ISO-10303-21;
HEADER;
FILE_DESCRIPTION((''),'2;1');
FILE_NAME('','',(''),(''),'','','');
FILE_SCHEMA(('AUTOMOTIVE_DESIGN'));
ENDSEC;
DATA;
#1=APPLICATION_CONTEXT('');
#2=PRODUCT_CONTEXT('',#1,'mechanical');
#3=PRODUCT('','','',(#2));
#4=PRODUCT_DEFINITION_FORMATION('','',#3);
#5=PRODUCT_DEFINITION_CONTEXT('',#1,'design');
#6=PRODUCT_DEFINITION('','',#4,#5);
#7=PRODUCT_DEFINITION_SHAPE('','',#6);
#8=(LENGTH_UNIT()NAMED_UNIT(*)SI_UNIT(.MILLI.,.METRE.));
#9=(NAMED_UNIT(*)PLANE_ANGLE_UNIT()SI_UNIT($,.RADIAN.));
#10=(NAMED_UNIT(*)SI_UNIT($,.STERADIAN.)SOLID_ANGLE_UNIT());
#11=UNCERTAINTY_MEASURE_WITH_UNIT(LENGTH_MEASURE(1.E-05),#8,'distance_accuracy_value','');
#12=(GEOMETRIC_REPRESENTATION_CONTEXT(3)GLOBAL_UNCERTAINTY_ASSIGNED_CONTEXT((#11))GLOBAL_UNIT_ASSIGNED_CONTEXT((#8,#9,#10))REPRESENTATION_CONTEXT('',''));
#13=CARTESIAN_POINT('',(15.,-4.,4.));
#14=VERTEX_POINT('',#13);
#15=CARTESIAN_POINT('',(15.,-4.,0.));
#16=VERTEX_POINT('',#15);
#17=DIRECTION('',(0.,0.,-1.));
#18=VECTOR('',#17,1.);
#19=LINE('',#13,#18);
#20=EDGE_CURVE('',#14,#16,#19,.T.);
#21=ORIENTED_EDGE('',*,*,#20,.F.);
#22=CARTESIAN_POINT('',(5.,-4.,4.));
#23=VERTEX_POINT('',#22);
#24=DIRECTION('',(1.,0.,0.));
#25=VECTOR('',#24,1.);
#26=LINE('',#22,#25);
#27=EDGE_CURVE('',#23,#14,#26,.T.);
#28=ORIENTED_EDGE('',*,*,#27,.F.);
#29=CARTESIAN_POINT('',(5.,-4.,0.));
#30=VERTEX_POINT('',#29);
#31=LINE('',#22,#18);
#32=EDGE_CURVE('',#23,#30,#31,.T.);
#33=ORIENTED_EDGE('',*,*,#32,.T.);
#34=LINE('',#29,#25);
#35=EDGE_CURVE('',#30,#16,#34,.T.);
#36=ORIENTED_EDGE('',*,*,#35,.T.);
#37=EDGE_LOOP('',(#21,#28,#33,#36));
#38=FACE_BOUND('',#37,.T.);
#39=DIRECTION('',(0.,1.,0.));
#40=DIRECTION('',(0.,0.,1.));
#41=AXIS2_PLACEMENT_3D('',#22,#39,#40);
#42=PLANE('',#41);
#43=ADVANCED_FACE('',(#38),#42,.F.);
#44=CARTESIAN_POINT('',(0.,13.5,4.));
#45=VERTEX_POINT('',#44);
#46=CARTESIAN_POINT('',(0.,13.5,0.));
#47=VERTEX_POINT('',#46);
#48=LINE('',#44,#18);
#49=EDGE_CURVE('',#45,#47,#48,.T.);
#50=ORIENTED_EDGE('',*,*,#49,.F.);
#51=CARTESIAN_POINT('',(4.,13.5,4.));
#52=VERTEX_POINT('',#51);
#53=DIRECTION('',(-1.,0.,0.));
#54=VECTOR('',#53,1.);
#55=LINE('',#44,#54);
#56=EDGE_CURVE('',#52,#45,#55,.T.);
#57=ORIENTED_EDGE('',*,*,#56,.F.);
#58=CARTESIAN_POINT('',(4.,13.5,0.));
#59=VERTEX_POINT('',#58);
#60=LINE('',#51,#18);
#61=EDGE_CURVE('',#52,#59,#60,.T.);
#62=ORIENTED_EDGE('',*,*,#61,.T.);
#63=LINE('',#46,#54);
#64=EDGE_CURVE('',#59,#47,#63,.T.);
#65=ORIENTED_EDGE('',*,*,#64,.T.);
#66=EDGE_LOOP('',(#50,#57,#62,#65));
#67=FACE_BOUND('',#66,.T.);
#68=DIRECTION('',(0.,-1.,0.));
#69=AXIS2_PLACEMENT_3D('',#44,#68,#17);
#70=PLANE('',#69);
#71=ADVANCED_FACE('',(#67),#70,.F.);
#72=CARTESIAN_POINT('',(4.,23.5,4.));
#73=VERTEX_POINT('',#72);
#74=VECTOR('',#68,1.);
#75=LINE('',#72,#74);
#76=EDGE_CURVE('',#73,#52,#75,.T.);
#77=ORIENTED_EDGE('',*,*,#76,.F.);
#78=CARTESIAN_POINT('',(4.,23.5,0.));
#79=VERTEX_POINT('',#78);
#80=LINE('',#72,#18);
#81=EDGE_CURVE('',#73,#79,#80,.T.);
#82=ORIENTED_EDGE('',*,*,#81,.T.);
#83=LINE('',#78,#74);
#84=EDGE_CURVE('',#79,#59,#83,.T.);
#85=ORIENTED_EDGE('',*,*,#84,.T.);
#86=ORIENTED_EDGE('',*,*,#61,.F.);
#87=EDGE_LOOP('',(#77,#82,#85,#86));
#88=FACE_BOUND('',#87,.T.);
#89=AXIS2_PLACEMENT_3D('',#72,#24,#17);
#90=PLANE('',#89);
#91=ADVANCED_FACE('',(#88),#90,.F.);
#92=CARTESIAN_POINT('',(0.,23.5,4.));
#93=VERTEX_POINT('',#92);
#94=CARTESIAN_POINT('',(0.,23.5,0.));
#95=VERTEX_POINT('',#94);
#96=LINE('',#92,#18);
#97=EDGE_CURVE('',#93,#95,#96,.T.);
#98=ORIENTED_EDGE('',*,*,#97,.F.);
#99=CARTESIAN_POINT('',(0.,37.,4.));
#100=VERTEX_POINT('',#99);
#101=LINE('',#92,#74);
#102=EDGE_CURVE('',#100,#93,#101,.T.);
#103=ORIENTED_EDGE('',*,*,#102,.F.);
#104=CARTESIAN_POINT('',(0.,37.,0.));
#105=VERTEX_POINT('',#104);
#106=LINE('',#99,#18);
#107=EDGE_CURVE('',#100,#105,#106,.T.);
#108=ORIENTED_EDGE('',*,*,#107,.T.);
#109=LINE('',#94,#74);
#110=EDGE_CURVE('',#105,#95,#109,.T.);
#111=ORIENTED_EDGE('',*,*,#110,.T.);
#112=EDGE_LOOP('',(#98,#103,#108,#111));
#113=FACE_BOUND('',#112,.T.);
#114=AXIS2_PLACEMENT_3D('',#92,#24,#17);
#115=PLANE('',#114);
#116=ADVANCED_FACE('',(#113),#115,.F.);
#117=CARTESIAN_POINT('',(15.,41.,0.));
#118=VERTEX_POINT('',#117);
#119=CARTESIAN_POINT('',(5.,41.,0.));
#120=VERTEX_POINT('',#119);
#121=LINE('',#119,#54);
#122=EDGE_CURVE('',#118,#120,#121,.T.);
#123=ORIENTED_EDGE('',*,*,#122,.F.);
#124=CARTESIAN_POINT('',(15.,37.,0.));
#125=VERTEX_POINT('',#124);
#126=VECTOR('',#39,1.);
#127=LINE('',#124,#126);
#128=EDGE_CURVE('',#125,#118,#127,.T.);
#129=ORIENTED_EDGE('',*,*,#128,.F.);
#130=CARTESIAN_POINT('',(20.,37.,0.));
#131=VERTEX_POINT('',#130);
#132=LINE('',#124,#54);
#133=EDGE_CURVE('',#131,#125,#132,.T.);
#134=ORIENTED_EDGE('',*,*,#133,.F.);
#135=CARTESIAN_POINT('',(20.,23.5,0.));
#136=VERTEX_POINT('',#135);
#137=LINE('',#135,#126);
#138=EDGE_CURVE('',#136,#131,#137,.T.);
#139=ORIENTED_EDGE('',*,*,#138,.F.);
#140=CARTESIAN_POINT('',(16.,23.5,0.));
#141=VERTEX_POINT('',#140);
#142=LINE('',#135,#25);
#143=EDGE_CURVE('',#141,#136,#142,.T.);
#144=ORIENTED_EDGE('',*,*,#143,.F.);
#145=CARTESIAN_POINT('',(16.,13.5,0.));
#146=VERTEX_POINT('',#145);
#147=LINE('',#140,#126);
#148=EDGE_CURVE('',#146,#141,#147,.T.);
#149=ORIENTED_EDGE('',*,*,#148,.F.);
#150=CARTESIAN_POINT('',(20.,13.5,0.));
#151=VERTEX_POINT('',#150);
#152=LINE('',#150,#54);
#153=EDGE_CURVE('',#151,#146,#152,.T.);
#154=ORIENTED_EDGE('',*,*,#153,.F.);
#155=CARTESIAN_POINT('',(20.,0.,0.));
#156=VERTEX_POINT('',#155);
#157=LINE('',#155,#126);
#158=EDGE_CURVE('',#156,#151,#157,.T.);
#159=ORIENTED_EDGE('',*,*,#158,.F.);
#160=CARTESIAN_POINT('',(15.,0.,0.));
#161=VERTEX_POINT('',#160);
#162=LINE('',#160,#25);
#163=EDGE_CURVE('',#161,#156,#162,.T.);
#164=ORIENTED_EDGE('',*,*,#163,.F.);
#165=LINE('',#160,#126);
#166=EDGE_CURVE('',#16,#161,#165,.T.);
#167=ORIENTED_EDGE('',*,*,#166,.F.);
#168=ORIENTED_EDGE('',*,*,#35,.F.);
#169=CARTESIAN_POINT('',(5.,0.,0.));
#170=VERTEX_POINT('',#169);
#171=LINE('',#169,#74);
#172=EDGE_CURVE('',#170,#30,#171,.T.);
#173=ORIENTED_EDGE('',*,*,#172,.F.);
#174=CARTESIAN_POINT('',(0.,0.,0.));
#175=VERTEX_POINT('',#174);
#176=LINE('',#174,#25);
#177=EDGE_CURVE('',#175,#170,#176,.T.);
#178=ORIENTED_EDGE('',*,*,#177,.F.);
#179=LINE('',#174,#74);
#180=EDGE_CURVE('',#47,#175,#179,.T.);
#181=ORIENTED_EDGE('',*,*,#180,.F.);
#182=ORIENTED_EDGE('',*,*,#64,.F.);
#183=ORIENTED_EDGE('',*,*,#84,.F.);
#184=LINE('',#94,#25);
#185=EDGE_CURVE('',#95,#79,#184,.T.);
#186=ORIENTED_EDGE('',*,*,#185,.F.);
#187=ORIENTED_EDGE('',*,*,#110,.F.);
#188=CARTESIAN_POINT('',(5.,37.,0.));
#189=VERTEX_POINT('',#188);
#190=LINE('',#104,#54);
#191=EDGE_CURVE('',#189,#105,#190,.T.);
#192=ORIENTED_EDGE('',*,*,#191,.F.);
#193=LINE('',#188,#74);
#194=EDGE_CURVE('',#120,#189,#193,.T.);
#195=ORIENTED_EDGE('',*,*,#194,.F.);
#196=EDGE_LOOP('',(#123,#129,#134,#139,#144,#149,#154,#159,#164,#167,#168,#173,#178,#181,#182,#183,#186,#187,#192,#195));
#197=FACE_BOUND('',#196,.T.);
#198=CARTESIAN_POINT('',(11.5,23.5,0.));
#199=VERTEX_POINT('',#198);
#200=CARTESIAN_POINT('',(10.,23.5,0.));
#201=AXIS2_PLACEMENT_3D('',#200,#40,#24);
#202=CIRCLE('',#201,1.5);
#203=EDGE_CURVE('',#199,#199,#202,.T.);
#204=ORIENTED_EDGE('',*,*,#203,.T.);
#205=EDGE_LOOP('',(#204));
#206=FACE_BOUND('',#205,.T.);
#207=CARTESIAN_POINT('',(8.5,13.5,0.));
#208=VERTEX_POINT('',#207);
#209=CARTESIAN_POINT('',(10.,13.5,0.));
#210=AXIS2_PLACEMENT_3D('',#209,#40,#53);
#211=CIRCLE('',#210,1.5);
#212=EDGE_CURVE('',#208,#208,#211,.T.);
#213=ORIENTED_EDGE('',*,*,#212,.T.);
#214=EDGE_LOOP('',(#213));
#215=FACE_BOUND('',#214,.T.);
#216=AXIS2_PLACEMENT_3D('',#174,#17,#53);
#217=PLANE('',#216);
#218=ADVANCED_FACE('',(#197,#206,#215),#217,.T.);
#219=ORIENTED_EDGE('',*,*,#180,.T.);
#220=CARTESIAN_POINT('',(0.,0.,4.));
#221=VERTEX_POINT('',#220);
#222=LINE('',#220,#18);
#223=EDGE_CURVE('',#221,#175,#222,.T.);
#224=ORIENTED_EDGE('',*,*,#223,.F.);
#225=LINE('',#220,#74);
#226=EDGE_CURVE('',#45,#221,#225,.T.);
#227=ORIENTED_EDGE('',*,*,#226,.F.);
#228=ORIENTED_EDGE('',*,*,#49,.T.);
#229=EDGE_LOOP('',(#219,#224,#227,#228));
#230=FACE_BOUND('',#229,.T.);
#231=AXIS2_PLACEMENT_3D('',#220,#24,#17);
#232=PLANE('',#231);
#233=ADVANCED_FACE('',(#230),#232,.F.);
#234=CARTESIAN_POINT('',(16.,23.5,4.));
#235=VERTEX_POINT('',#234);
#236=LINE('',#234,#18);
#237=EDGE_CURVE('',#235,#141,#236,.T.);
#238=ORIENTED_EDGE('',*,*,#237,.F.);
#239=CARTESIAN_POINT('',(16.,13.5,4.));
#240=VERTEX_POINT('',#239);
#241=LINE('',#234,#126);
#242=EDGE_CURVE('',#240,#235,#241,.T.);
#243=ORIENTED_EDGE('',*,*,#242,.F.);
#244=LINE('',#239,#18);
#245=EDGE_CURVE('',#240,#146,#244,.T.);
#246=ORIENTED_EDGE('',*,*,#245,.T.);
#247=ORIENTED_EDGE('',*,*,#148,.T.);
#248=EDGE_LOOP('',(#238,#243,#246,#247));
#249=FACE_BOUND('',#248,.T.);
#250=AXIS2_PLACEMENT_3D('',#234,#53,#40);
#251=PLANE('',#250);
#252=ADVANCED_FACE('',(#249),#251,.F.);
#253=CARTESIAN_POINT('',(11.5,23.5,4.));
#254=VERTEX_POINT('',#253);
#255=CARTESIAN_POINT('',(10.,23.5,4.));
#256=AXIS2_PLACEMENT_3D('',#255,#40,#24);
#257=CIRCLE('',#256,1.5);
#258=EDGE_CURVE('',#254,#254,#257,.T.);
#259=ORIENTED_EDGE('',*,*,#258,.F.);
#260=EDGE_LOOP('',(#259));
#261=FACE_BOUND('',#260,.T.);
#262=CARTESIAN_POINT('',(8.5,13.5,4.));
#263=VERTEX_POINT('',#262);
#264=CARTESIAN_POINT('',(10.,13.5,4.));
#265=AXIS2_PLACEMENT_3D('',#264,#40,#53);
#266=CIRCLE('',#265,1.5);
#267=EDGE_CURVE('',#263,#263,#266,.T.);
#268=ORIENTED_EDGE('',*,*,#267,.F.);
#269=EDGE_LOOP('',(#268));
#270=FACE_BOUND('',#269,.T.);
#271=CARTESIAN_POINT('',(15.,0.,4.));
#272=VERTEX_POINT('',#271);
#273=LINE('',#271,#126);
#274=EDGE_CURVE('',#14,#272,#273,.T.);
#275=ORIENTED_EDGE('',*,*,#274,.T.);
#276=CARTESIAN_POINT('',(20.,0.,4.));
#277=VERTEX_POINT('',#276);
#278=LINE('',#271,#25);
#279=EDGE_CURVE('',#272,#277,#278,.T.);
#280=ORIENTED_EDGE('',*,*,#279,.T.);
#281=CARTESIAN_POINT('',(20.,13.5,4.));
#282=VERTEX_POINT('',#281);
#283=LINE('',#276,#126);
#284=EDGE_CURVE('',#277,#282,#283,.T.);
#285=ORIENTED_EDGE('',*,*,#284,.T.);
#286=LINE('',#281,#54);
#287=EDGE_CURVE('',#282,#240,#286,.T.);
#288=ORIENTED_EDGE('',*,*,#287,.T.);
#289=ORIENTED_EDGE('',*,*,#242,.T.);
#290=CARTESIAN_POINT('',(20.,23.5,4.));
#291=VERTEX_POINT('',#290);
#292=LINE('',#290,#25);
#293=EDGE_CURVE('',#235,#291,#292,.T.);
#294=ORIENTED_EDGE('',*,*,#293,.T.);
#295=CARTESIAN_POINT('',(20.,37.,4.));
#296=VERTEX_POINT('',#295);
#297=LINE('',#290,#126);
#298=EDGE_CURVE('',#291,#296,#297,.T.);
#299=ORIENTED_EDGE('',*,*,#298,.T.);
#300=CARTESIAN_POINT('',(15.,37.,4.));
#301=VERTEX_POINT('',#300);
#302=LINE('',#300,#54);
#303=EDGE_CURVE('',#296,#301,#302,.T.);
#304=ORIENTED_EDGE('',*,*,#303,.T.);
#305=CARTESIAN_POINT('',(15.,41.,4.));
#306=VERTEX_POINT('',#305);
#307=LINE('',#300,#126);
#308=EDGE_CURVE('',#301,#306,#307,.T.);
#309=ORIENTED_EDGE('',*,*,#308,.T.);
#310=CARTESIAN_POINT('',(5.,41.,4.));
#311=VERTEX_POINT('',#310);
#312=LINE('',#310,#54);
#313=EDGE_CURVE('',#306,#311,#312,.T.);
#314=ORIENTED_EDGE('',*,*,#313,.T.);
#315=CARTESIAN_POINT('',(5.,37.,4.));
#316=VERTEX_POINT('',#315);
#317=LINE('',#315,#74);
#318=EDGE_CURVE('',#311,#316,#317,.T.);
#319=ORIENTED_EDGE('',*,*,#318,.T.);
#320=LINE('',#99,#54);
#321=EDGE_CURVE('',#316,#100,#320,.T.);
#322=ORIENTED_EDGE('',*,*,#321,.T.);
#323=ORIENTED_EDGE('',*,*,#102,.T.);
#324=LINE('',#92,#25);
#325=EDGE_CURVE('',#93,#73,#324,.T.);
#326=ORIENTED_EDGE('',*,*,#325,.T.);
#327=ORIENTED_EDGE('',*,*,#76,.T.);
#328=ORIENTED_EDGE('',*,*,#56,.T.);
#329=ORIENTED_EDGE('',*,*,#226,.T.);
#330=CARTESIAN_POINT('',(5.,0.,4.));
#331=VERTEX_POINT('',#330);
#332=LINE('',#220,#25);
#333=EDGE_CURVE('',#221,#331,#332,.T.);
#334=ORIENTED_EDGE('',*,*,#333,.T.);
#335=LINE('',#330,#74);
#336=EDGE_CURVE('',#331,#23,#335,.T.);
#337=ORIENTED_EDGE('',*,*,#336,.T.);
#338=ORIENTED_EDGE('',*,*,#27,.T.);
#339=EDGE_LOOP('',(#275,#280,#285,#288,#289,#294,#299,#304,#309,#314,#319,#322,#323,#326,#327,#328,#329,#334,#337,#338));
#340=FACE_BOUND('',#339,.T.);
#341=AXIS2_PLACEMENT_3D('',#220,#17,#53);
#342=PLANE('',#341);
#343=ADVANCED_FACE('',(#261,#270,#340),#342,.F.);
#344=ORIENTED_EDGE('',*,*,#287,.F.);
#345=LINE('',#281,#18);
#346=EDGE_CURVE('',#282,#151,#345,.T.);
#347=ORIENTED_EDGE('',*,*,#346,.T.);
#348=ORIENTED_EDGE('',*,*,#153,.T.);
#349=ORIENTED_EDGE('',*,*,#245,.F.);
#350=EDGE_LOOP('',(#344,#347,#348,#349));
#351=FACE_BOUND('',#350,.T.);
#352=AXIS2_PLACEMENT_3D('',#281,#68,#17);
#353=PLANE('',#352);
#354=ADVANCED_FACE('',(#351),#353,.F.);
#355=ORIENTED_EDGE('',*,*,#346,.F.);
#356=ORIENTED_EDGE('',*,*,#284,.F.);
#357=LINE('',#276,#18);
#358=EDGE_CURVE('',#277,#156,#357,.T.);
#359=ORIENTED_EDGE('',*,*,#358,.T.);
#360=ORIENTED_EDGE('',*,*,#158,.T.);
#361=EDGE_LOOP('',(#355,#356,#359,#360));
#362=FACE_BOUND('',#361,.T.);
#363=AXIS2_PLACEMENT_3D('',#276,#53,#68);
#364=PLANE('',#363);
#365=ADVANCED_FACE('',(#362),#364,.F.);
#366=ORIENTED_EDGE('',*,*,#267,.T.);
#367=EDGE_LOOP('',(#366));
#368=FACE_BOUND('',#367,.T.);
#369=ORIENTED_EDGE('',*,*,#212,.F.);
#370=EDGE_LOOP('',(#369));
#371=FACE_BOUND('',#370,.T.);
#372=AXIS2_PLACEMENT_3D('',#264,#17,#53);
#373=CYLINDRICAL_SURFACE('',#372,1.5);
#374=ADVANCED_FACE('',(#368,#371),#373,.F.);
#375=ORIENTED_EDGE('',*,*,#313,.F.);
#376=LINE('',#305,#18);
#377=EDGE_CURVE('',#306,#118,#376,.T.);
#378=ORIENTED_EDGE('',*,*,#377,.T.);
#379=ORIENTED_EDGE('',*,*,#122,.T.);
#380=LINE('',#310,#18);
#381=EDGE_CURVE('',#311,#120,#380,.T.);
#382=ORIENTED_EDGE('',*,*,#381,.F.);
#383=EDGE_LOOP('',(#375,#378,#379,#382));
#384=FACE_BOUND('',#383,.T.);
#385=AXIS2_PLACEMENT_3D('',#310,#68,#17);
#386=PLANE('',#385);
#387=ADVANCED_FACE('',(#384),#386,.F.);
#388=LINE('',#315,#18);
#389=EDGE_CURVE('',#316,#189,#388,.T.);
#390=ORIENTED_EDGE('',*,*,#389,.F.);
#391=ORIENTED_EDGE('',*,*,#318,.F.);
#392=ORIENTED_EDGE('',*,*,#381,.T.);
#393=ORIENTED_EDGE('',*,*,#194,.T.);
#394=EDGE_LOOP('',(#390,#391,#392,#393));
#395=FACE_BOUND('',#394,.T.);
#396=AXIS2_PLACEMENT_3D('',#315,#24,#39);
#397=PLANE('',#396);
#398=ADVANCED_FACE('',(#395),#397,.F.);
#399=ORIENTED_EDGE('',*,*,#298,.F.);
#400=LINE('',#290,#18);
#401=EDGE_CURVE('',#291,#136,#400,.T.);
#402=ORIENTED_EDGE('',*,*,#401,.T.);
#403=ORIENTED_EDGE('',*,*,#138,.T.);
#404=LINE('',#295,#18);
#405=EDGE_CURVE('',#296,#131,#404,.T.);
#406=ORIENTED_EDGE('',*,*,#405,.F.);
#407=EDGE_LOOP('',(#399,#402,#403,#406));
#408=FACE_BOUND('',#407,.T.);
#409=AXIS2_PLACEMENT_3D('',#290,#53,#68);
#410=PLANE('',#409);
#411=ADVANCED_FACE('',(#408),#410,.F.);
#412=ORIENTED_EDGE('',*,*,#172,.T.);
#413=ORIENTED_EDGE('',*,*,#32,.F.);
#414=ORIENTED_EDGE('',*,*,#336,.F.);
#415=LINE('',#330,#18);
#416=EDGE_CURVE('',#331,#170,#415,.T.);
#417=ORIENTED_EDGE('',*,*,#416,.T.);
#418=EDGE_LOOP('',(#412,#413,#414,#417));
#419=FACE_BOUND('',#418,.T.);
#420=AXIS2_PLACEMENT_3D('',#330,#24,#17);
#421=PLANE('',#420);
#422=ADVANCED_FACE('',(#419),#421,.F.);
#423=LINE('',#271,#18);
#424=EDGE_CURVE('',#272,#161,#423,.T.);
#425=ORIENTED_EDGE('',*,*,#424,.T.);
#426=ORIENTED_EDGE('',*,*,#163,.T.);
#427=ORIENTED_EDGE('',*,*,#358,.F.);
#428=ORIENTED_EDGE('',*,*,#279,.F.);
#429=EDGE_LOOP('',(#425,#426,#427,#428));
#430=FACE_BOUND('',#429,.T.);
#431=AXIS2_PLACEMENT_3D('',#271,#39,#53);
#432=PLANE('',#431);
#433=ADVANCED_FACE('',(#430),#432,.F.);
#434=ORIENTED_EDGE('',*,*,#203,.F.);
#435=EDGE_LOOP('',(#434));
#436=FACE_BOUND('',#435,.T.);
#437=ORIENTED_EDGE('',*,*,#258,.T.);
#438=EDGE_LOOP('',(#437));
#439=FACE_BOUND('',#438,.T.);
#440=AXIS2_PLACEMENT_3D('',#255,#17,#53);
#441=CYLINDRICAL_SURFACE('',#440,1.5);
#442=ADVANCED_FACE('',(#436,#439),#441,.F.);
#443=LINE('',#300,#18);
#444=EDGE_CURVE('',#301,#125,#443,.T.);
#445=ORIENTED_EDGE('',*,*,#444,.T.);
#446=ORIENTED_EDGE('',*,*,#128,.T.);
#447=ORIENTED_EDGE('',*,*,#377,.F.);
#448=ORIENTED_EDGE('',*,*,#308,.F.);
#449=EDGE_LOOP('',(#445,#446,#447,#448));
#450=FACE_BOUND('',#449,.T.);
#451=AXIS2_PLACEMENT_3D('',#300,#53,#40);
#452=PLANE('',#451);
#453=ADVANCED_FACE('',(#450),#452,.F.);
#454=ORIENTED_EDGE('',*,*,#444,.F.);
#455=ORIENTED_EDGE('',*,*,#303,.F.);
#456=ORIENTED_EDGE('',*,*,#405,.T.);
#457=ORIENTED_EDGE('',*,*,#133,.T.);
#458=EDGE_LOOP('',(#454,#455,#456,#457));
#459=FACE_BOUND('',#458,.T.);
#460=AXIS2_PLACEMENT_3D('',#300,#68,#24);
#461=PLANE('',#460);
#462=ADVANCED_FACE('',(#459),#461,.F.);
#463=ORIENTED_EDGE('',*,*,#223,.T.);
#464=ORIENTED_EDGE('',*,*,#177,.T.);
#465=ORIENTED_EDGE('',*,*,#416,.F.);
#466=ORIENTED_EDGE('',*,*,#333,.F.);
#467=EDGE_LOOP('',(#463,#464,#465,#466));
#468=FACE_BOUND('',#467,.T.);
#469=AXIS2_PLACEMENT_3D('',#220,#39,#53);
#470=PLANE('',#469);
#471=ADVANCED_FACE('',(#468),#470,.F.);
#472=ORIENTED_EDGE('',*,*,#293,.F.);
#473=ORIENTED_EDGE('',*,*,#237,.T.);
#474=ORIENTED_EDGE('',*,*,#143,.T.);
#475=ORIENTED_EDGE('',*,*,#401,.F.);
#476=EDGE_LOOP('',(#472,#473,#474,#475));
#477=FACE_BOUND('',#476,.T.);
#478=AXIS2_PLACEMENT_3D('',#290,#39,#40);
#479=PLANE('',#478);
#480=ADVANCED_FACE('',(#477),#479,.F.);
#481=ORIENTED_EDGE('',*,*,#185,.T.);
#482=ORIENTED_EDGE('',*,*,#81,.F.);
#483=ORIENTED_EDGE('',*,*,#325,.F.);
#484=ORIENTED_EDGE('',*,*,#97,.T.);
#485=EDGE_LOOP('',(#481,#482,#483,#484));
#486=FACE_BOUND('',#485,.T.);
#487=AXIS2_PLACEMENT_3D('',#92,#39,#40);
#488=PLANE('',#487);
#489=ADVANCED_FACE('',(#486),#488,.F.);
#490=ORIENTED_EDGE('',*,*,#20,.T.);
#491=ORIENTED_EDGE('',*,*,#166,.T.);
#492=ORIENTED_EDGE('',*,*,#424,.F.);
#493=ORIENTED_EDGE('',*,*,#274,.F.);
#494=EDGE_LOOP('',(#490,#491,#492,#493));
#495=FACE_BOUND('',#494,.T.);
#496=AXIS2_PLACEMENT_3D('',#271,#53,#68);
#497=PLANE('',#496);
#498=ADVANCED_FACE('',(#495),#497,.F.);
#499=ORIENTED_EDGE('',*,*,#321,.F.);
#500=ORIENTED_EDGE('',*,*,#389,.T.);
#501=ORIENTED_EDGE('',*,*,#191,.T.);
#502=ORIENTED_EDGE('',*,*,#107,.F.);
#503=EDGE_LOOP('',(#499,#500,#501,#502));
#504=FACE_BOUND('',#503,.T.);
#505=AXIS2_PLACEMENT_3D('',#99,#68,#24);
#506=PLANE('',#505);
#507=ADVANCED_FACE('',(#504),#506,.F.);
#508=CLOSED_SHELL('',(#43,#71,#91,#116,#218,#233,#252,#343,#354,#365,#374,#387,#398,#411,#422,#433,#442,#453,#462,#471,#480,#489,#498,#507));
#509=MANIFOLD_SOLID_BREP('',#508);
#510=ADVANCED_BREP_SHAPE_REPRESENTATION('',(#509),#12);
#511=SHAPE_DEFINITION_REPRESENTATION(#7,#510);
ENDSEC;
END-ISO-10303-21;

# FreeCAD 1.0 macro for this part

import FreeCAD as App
import Part
import Sketcher
from FreeCAD import Vector


def add_polygon(sketch, points):
    """Adds a closed chain of lines whose ends are joined by coincident constraints."""
    first, n = sketch.GeometryCount, len(points)
    for a, b in zip(points, points[1:] + points[:1]):
        sketch.addGeometry(Part.LineSegment(App.Vector(*a, 0), App.Vector(*b, 0)), False)
    for i in range(n):
        sketch.addConstraint(Sketcher.Constraint("Coincident", first + i, 2, first + (i + 1) % n, 1))

doc = App.newDocument("Part")
params = doc.addObject("Spreadsheet::Sheet", "Params")
for row, (alias, value) in enumerate([
    ("sketch1_diameter", "3 mm"),
    ("sketch1_width", "5 mm"),
    ("sketch1_width2", "10 mm"),
    ("sketch1_width3", "4 mm"),
    ("sketch1_height", "13.5 mm"),
    ("pad1_length", "4 mm"),
], start=1):
    params.set(f"A{row}", alias)
    params.set(f"B{row}", "=" + value)
    params.setAlias(f"B{row}", alias)

body = doc.addObject("PartDesign::Body", "Body")

sketch1 = body.newObject("Sketcher::SketchObject", "Sketch")
sketch1.AttachmentSupport = (doc.getObject("XY_Plane"), [""])
sketch1.MapMode = "FlatFace"
add_polygon(sketch1, [(0, 0), (5, 0), (5, -4), (15, -4), (15, 0), (20, 0), (20, 13.5), (16, 13.5), (16, 23.5), (20, 23.5), (20, 37), (15, 37), (15, 41), (5, 41), (5, 37), (0, 37), (0, 23.5), (4, 23.5), (4, 13.5), (0, 13.5)])
sketch1.addGeometry(Part.Circle(Vector(10, 13.5, 0), Vector(0, 0, 1), 1.5), False)
sketch1.addGeometry(Part.Circle(Vector(10, 23.5, 0), Vector(0, 0, 1), 1.5), False)
sketch1.addConstraint([
    Sketcher.Constraint("Horizontal", 0),
    Sketcher.Constraint("Vertical", 1),
    Sketcher.Constraint("Horizontal", 2),
    Sketcher.Constraint("Vertical", 3),
    Sketcher.Constraint("Horizontal", 4),
    Sketcher.Constraint("Vertical", 5),
    Sketcher.Constraint("Horizontal", 6),
    Sketcher.Constraint("Vertical", 7),
    Sketcher.Constraint("Horizontal", 8),
    Sketcher.Constraint("Vertical", 9),
    Sketcher.Constraint("Horizontal", 10),
    Sketcher.Constraint("Vertical", 11),
    Sketcher.Constraint("Horizontal", 12),
    Sketcher.Constraint("Vertical", 13),
    Sketcher.Constraint("Horizontal", 14),
    Sketcher.Constraint("Vertical", 15),
    Sketcher.Constraint("Horizontal", 16),
    Sketcher.Constraint("Vertical", 17),
    Sketcher.Constraint("Horizontal", 18),
    Sketcher.Constraint("Vertical", 19),
    Sketcher.Constraint("Coincident", 19, 2, -1, 1),
    Sketcher.Constraint("Equal", 20, 21),
    Sketcher.Constraint("PointOnObject", 3, 2, -1),
    Sketcher.Constraint("PointOnObject", 14, 2, -2),
    Sketcher.Constraint("Horizontal", 20, 3, 5, 2),
    Sketcher.Constraint("Horizontal", 21, 3, 7, 2),
    Sketcher.Constraint("Horizontal", 10, 2, 13, 2),
    Sketcher.Constraint("Horizontal", 8, 2, 15, 2),
    Sketcher.Constraint("Horizontal", 6, 2, 17, 2),
    Sketcher.Constraint("Vertical", 20, 3, 21, 3),
    Sketcher.Constraint("Vertical", 5, 2, 8, 2),
    Sketcher.Constraint("Vertical", 3, 2, 10, 2),
    Sketcher.Constraint("Vertical", 1, 2, 12, 2),
    Sketcher.Constraint("Equal", 0, 4),
    Sketcher.Constraint("Equal", 8, 16),
    Sketcher.Constraint("Equal", 18, 1),
    Sketcher.Constraint("Equal", 12, 7),
    Sketcher.Constraint("Equal", 5, 9),
    Sketcher.Constraint("Equal", 3, 11),
    Sketcher.Constraint("Diameter", 20, 3.0),
    Sketcher.Constraint("DistanceX", 0, 1, 0, 2, 5.0),
    Sketcher.Constraint("DistanceX", 2, 1, 2, 2, 10.0),
    Sketcher.Constraint("DistanceX", 6, 2, 6, 1, 4.0),
    Sketcher.Constraint("DistanceY", 5, 1, 5, 2, 13.5),
    Sketcher.Constraint("DistanceX", -1, 1, 20, 3, 10.0),
])
sketch1.setExpression("Constraints[59]", "Params.sketch1_diameter")
sketch1.setExpression("Constraints[60]", "Params.sketch1_width")
sketch1.setExpression("Constraints[61]", "Params.sketch1_width2")
sketch1.setExpression("Constraints[62]", "Params.sketch1_width3")
sketch1.setExpression("Constraints[63]", "Params.sketch1_height")
pad1 = body.newObject("PartDesign::Pad", "Pad")
pad1.Profile = sketch1
pad1.setExpression("Length", "Params.pad1_length")

doc.recompute()
